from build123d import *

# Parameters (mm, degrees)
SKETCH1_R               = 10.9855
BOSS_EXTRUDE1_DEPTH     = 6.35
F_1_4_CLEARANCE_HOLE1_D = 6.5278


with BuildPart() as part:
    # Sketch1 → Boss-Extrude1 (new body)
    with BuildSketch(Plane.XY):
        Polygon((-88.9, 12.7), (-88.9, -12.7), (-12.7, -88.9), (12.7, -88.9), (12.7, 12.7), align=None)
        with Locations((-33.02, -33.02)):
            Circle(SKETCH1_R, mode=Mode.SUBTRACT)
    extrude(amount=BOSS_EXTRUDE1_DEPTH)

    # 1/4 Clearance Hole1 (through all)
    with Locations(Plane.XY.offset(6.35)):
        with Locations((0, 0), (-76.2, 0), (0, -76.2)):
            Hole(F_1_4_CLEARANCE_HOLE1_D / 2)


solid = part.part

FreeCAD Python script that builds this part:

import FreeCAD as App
import Part
import Sketcher
from FreeCAD import Vector
Q = App.Units.Quantity


def add_polygon(sketch, points):
    """Adds a closed chain of lines whose ends are joined by coincident constraints."""
    first, n = sketch.GeometryCount, len(points)
    for a, b in zip(points, points[1:] + points[:1]):
        sketch.addGeometry(Part.LineSegment(App.Vector(*a, 0), App.Vector(*b, 0)), False)
    for i in range(n):
        sketch.addConstraint(Sketcher.Constraint("Coincident", first + i, 2, first + (i + 1) % n, 1))

doc = App.newDocument("Part")
body = doc.addObject("PartDesign::Body", "Body")

# Sketch on XY plane
sketch1 = doc.addObject("Sketcher::SketchObject", "Sketch")
body.addObject(sketch1)
sketch1.AttachmentSupport = (doc.XY_Plane, [""])
sketch1.MapMode = "FlatFace"
add_polygon(sketch1, [(-89, 13), (-89, -13), (-13, -89), (13, -89), (13, 13)])  # lines 0-4
sketch1.addGeometry(Part.Circle(Vector(-33, -33, 0), Vector(0, 0, 1), 11), False)  # 5
sketch1.addConstraint([
    Sketcher.Constraint("Vertical", 0),
    Sketcher.Constraint("Horizontal", 2),
    Sketcher.Constraint("Vertical", 3),
    Sketcher.Constraint("Horizontal", 4),
    Sketcher.Constraint("Equal", 2, 0),
    Sketcher.Constraint("Equal", 4, 3),
    Sketcher.Constraint("DistanceX", 2, 1, 2, 2, Q("1 in")),
    Sketcher.Constraint("DistanceX", 4, 2, 4, 1, Q("4 in")),
    Sketcher.Constraint("Diameter", 5, Q("0.865 in")),
    Sketcher.Constraint("DistanceX", 5, 3, -1, 1, Q("1.3 in")),
    Sketcher.Constraint("DistanceY", 5, 3, -1, 1, Q("1.3 in")),
    Sketcher.Constraint("DistanceX", 0, 2, -1, 1, Q("3.5 in")),
    Sketcher.Constraint("DistanceY", 0, 2, -1, 1, Q("0.5 in")),
])
pad1 = doc.addObject("PartDesign::Pad", "Pad")
body.addObject(pad1)
pad1.Profile = sketch1
pad1.Length = Q("0.25 in")

# Sketch on XY plane
sketch2 = doc.addObject("Sketcher::SketchObject", "Sketch001")
body.addObject(sketch2)
sketch2.AttachmentSupport = (doc.XY_Plane, [""])
sketch2.MapMode = "FlatFace"
sketch2.AttachmentOffset = App.Placement(Vector(0, 0, 0.25 * 25.4), App.Rotation())
sketch2.addGeometry([
    Part.Circle(Vector(0, 0, 0), Vector(0, 0, 1), 3.3),
    Part.Circle(Vector(-76.2, 0, 0), Vector(0, 0, 1), 3.3),
    Part.Circle(Vector(0, -76.2, 0), Vector(0, 0, 1), 3.3),
], False)
sketch2.addConstraint([
    Sketcher.Constraint("Coincident", 0, 3, -1, 1),
    Sketcher.Constraint("Equal", 0, 1),
    Sketcher.Constraint("Equal", 1, 2),
    Sketcher.Constraint("PointOnObject", 1, 3, -1),
    Sketcher.Constraint("PointOnObject", 2, 3, -2),
    Sketcher.Constraint("Diameter", 0, Q("0.257 in")),
    Sketcher.Constraint("DistanceX", 1, 3, -1, 1, Q("3 in")),
    Sketcher.Constraint("DistanceY", 2, 3, -1, 1, Q("3 in")),
])
doc.recompute()
hole = doc.addObject("PartDesign::Hole", "Hole")
body.addObject(hole)
hole.Profile = sketch2
hole.ThreadType = "None"
hole.Diameter = Q("0.257 in")
hole.DepthType = "ThroughAll"

doc.recompute()
